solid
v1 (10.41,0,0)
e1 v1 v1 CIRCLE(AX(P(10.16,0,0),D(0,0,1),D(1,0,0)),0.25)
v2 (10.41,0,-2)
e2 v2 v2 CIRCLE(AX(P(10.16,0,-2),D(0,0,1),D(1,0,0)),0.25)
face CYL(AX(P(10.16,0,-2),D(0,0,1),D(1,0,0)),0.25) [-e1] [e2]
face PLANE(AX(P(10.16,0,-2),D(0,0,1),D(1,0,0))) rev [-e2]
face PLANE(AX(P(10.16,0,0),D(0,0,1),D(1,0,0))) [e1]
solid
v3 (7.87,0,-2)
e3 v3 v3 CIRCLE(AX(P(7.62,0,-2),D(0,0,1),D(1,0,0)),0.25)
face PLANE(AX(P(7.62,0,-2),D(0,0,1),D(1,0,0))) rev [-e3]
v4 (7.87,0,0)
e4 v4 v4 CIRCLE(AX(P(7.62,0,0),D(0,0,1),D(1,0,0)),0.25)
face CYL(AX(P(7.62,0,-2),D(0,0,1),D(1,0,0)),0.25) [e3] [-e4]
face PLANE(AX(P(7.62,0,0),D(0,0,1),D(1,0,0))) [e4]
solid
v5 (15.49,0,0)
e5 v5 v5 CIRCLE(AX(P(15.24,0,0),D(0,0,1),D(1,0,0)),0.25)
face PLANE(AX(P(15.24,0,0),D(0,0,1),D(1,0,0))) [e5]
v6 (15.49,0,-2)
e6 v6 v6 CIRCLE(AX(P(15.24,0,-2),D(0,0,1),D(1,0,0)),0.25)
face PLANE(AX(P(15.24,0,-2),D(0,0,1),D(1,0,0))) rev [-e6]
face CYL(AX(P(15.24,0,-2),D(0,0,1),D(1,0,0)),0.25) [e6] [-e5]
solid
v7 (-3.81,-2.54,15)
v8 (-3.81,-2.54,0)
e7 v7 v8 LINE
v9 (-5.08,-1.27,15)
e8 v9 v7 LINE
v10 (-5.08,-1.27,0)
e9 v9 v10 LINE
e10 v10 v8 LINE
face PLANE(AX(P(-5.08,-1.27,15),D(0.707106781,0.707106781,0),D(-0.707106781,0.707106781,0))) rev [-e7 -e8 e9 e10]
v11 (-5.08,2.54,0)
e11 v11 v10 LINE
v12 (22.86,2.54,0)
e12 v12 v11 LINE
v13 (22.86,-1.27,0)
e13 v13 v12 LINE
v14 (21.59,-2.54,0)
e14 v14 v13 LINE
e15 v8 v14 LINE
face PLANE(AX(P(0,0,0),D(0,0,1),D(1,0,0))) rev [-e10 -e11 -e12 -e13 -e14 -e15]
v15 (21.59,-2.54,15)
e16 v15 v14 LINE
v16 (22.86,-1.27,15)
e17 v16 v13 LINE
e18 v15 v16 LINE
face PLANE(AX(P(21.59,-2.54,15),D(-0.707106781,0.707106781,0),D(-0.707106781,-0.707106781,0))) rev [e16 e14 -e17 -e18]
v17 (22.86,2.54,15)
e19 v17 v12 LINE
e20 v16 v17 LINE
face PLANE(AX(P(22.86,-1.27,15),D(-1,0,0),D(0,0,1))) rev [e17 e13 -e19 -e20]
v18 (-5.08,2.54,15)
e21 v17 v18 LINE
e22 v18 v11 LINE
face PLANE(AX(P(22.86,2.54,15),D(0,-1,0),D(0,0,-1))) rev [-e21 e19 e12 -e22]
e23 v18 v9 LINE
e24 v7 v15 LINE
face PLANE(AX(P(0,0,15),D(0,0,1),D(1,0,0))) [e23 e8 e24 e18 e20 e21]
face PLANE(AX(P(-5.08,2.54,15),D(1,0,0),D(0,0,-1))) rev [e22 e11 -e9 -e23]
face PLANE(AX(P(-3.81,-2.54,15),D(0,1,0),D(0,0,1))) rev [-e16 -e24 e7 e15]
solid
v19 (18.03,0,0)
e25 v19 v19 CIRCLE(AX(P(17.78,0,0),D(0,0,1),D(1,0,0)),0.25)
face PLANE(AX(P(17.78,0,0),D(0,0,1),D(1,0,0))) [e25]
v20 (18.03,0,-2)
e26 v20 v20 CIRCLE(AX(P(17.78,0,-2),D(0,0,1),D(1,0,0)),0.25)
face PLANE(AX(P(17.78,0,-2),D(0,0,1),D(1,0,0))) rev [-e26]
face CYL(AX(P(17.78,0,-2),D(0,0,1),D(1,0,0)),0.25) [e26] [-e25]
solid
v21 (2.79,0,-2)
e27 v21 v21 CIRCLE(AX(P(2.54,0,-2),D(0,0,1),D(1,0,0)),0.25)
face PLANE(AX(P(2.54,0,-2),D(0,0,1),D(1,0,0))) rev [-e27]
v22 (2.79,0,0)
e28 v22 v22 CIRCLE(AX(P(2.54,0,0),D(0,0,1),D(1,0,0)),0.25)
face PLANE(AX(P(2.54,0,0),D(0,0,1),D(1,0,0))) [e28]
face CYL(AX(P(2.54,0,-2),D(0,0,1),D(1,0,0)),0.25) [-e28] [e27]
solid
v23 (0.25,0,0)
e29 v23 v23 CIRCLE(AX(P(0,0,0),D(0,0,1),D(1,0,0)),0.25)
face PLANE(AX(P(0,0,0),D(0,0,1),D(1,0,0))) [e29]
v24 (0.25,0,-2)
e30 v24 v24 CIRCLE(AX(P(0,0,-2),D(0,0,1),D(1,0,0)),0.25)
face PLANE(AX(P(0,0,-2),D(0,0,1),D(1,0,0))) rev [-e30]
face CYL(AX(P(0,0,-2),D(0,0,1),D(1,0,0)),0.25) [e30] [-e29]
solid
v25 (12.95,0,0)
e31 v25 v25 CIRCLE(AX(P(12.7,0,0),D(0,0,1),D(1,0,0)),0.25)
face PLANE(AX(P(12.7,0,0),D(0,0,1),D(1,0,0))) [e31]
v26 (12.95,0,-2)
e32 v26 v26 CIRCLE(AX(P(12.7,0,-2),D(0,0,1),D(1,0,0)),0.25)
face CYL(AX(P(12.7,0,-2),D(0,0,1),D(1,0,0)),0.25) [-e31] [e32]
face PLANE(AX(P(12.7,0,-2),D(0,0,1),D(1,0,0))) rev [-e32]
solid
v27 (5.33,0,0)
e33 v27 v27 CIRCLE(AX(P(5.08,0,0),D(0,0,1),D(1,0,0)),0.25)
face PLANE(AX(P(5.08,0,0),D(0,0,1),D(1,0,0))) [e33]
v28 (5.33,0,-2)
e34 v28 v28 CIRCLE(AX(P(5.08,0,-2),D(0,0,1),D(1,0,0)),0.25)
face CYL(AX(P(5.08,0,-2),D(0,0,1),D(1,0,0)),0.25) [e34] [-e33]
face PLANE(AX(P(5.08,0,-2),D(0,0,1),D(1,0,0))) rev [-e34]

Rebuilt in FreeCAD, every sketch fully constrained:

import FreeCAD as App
import Part
import Sketcher

V = App.Vector
Q = App.Units.Quantity

doc = App.newDocument("Part")
params = doc.addObject("Spreadsheet::Sheet", "Params")
for row, (alias, value) in enumerate([
    ("sketch1_width", "25.4 mm"),
    ("sketch1_width2", "27.94 mm"),
    ("sketch1_height", "3.81 mm"),
    ("pad1_length", "15 mm"),
    ("sketch2_diameter", "0.5 mm"),
    ("pad2_length", "2 mm"),
    ("sketch3_diameter", "0.5 mm"),
    ("pad3_length", "2 mm"),
    ("sketch4_diameter", "0.5 mm"),
    ("pad4_length", "2 mm"),
    ("sketch5_diameter", "0.5 mm"),
    ("pad5_length", "2 mm"),
    ("sketch6_diameter", "0.5 mm"),
    ("pad6_length", "2 mm"),
    ("sketch7_diameter", "0.5 mm"),
    ("pad7_length", "2 mm"),
    ("sketch8_diameter", "0.5 mm"),
    ("pad8_length", "2 mm"),
    ("sketch9_diameter", "0.5 mm"),
    ("pad9_length", "2 mm"),
], start=1):
    params.set(f"A{row}", alias)
    params.set(f"B{row}", "=" + value)
    params.setAlias(f"B{row}", alias)

body = doc.addObject("PartDesign::Body", "Body")

sketch1 = doc.addObject("Sketcher::SketchObject", "Sketch")
body.addObject(sketch1)
sketch1.AttachmentSupport = (doc.XY_Plane, [""])
sketch1.MapMode = "FlatFace"
sketch1.addGeometry([
    Part.LineSegment(V(-5.1, 2.5, 0), V(-5.1, -1.3, 0)),
    Part.LineSegment(V(-5.1, -1.3, 0), V(-3.8, -2.5, 0)),
    Part.LineSegment(V(-3.8, -2.5, 0), V(21.6, -2.5, 0)),
    Part.LineSegment(V(21.6, -2.5, 0), V(22.9, -1.3, 0)),
    Part.LineSegment(V(22.9, -1.3, 0), V(22.9, 2.5, 0)),
    Part.LineSegment(V(22.9, 2.5, 0), V(-5.1, 2.5, 0)),
], False)
sketch1.addConstraint([
    Sketcher.Constraint("Coincident", 0, 2, 1, 1),
    Sketcher.Constraint("Coincident", 1, 2, 2, 1),
    Sketcher.Constraint("Coincident", 2, 2, 3, 1),
    Sketcher.Constraint("Coincident", 3, 2, 4, 1),
    Sketcher.Constraint("Coincident", 4, 2, 5, 1),
    Sketcher.Constraint("Coincident", 5, 2, 0, 1),
    Sketcher.Constraint("Vertical", 0),
    Sketcher.Constraint("Horizontal", 2),
    Sketcher.Constraint("Vertical", 4),
    Sketcher.Constraint("Horizontal", 5),
    Sketcher.Constraint("Perpendicular", 1, 3),
    Sketcher.Constraint("Horizontal", 0, 2, 3, 2),
    Sketcher.Constraint("Equal", 1, 3),
    Sketcher.Constraint("DistanceX", 2, 1, 2, 2, Q("25.4 mm")),
    Sketcher.Constraint("DistanceX", 5, 2, 5, 1, Q("27.94 mm")),
    Sketcher.Constraint("DistanceY", 0, 2, 0, 1, Q("3.81 mm")),
    Sketcher.Constraint("DistanceX", 0, 2, -1, 1, Q("5.08 mm")),
    Sketcher.Constraint("DistanceY", 0, 2, -1, 1, Q("1.27 mm")),
])
sketch1.setExpression("Constraints[13]", "Params.sketch1_width")
sketch1.setExpression("Constraints[14]", "Params.sketch1_width2")
sketch1.setExpression("Constraints[15]", "Params.sketch1_height")
pad1 = doc.addObject("PartDesign::Pad", "Pad")
body.addObject(pad1)
pad1.Profile = sketch1
pad1.setExpression("Length", "Params.pad1_length")
body2 = doc.addObject("PartDesign::Body", "Body001")

sketch2 = doc.addObject("Sketcher::SketchObject", "Sketch001")
body2.addObject(sketch2)
sketch2.AttachmentSupport = (doc.getObject("XY_Plane001"), [""])
sketch2.MapMode = "FlatFace"
sketch2.addGeometry(Part.Circle(V(0, 0, 0), V(0, 0, 1), 0.25), False)
sketch2.addConstraint([
    Sketcher.Constraint("Coincident", 0, 3, -1, 1),
    Sketcher.Constraint("Diameter", 0, Q("0.5 mm")),
])
sketch2.setExpression("Constraints[1]", "Params.sketch2_diameter")
pad2 = doc.addObject("PartDesign::Pad", "Pad001")
body2.addObject(pad2)
pad2.Profile = sketch2
pad2.setExpression("Length", "Params.pad2_length")
pad2.Reversed = True
body3 = doc.addObject("PartDesign::Body", "Body002")

sketch3 = doc.addObject("Sketcher::SketchObject", "Sketch002")
body3.addObject(sketch3)
sketch3.AttachmentSupport = (doc.getObject("XY_Plane002"), [""])
sketch3.MapMode = "FlatFace"
sketch3.addGeometry(Part.Circle(V(2.54, 0, 0), V(0, 0, 1), 0.25), False)
sketch3.addConstraint([
    Sketcher.Constraint("PointOnObject", 0, 3, -1),
    Sketcher.Constraint("Diameter", 0, Q("0.5 mm")),
    Sketcher.Constraint("DistanceX", -1, 1, 0, 3, Q("2.54 mm")),
])
sketch3.setExpression("Constraints[1]", "Params.sketch3_diameter")
pad3 = doc.addObject("PartDesign::Pad", "Pad002")
body3.addObject(pad3)
pad3.Profile = sketch3
pad3.setExpression("Length", "Params.pad3_length")
pad3.Reversed = True
body4 = doc.addObject("PartDesign::Body", "Body003")

sketch4 = doc.addObject("Sketcher::SketchObject", "Sketch003")
body4.addObject(sketch4)
sketch4.AttachmentSupport = (doc.getObject("XY_Plane003"), [""])
sketch4.MapMode = "FlatFace"
sketch4.addGeometry(Part.Circle(V(5.08, 0, 0), V(0, 0, 1), 0.25), False)
sketch4.addConstraint([
    Sketcher.Constraint("PointOnObject", 0, 3, -1),
    Sketcher.Constraint("Diameter", 0, Q("0.5 mm")),
    Sketcher.Constraint("DistanceX", -1, 1, 0, 3, Q("5.08 mm")),
])
sketch4.setExpression("Constraints[1]", "Params.sketch4_diameter")
pad4 = doc.addObject("PartDesign::Pad", "Pad003")
body4.addObject(pad4)
pad4.Profile = sketch4
pad4.setExpression("Length", "Params.pad4_length")
pad4.Reversed = True
body5 = doc.addObject("PartDesign::Body", "Body004")

sketch5 = doc.addObject("Sketcher::SketchObject", "Sketch004")
body5.addObject(sketch5)
sketch5.AttachmentSupport = (doc.getObject("XY_Plane004"), [""])
sketch5.MapMode = "FlatFace"
sketch5.addGeometry(Part.Circle(V(7.62, 0, 0), V(0, 0, 1), 0.25), False)
sketch5.addConstraint([
    Sketcher.Constraint("PointOnObject", 0, 3, -1),
    Sketcher.Constraint("Diameter", 0, Q("0.5 mm")),
    Sketcher.Constraint("DistanceX", -1, 1, 0, 3, Q("7.62 mm")),
])
sketch5.setExpression("Constraints[1]", "Params.sketch5_diameter")
pad5 = doc.addObject("PartDesign::Pad", "Pad004")
body5.addObject(pad5)
pad5.Profile = sketch5
pad5.setExpression("Length", "Params.pad5_length")
pad5.Reversed = True
body6 = doc.addObject("PartDesign::Body", "Body005")

sketch6 = doc.addObject("Sketcher::SketchObject", "Sketch005")
body6.addObject(sketch6)
sketch6.AttachmentSupport = (doc.getObject("XY_Plane005"), [""])
sketch6.MapMode = "FlatFace"
sketch6.addGeometry(Part.Circle(V(10.16, 0, 0), V(0, 0, 1), 0.25), False)
sketch6.addConstraint([
    Sketcher.Constraint("PointOnObject", 0, 3, -1),
    Sketcher.Constraint("Diameter", 0, Q("0.5 mm")),
    Sketcher.Constraint("DistanceX", -1, 1, 0, 3, Q("10.16 mm")),
])
sketch6.setExpression("Constraints[1]", "Params.sketch6_diameter")
pad6 = doc.addObject("PartDesign::Pad", "Pad005")
body6.addObject(pad6)
pad6.Profile = sketch6
pad6.setExpression("Length", "Params.pad6_length")
pad6.Reversed = True
body7 = doc.addObject("PartDesign::Body", "Body006")

sketch7 = doc.addObject("Sketcher::SketchObject", "Sketch006")
body7.addObject(sketch7)
sketch7.AttachmentSupport = (doc.getObject("XY_Plane006"), [""])
sketch7.MapMode = "FlatFace"
sketch7.addGeometry(Part.Circle(V(12.7, 0, 0), V(0, 0, 1), 0.25), False)
sketch7.addConstraint([
    Sketcher.Constraint("PointOnObject", 0, 3, -1),
    Sketcher.Constraint("Diameter", 0, Q("0.5 mm")),
    Sketcher.Constraint("DistanceX", -1, 1, 0, 3, Q("12.7 mm")),
])
sketch7.setExpression("Constraints[1]", "Params.sketch7_diameter")
pad7 = doc.addObject("PartDesign::Pad", "Pad006")
body7.addObject(pad7)
pad7.Profile = sketch7
pad7.setExpression("Length", "Params.pad7_length")
pad7.Reversed = True
body8 = doc.addObject("PartDesign::Body", "Body007")

sketch8 = doc.addObject("Sketcher::SketchObject", "Sketch007")
body8.addObject(sketch8)
sketch8.AttachmentSupport = (doc.getObject("XY_Plane007"), [""])
sketch8.MapMode = "FlatFace"
sketch8.addGeometry(Part.Circle(V(15.24, 0, 0), V(0, 0, 1), 0.25), False)
sketch8.addConstraint([
    Sketcher.Constraint("PointOnObject", 0, 3, -1),
    Sketcher.Constraint("Diameter", 0, Q("0.5 mm")),
    Sketcher.Constraint("DistanceX", -1, 1, 0, 3, Q("15.24 mm")),
])
sketch8.setExpression("Constraints[1]", "Params.sketch8_diameter")
pad8 = doc.addObject("PartDesign::Pad", "Pad007")
body8.addObject(pad8)
pad8.Profile = sketch8
pad8.setExpression("Length", "Params.pad8_length")
pad8.Reversed = True
body9 = doc.addObject("PartDesign::Body", "Body008")

sketch9 = doc.addObject("Sketcher::SketchObject", "Sketch008")
body9.addObject(sketch9)
sketch9.AttachmentSupport = (doc.getObject("XY_Plane008"), [""])
sketch9.MapMode = "FlatFace"
sketch9.addGeometry(Part.Circle(V(17.78, 0, 0), V(0, 0, 1), 0.25), False)
sketch9.addConstraint([
    Sketcher.Constraint("PointOnObject", 0, 3, -1),
    Sketcher.Constraint("Diameter", 0, Q("0.5 mm")),
    Sketcher.Constraint("DistanceX", -1, 1, 0, 3, Q("17.78 mm")),
])
sketch9.setExpression("Constraints[1]", "Params.sketch9_diameter")
pad9 = doc.addObject("PartDesign::Pad", "Pad008")
body9.addObject(pad9)
pad9.Profile = sketch9
pad9.setExpression("Length", "Params.pad9_length")
pad9.Reversed = True

doc.recompute()
